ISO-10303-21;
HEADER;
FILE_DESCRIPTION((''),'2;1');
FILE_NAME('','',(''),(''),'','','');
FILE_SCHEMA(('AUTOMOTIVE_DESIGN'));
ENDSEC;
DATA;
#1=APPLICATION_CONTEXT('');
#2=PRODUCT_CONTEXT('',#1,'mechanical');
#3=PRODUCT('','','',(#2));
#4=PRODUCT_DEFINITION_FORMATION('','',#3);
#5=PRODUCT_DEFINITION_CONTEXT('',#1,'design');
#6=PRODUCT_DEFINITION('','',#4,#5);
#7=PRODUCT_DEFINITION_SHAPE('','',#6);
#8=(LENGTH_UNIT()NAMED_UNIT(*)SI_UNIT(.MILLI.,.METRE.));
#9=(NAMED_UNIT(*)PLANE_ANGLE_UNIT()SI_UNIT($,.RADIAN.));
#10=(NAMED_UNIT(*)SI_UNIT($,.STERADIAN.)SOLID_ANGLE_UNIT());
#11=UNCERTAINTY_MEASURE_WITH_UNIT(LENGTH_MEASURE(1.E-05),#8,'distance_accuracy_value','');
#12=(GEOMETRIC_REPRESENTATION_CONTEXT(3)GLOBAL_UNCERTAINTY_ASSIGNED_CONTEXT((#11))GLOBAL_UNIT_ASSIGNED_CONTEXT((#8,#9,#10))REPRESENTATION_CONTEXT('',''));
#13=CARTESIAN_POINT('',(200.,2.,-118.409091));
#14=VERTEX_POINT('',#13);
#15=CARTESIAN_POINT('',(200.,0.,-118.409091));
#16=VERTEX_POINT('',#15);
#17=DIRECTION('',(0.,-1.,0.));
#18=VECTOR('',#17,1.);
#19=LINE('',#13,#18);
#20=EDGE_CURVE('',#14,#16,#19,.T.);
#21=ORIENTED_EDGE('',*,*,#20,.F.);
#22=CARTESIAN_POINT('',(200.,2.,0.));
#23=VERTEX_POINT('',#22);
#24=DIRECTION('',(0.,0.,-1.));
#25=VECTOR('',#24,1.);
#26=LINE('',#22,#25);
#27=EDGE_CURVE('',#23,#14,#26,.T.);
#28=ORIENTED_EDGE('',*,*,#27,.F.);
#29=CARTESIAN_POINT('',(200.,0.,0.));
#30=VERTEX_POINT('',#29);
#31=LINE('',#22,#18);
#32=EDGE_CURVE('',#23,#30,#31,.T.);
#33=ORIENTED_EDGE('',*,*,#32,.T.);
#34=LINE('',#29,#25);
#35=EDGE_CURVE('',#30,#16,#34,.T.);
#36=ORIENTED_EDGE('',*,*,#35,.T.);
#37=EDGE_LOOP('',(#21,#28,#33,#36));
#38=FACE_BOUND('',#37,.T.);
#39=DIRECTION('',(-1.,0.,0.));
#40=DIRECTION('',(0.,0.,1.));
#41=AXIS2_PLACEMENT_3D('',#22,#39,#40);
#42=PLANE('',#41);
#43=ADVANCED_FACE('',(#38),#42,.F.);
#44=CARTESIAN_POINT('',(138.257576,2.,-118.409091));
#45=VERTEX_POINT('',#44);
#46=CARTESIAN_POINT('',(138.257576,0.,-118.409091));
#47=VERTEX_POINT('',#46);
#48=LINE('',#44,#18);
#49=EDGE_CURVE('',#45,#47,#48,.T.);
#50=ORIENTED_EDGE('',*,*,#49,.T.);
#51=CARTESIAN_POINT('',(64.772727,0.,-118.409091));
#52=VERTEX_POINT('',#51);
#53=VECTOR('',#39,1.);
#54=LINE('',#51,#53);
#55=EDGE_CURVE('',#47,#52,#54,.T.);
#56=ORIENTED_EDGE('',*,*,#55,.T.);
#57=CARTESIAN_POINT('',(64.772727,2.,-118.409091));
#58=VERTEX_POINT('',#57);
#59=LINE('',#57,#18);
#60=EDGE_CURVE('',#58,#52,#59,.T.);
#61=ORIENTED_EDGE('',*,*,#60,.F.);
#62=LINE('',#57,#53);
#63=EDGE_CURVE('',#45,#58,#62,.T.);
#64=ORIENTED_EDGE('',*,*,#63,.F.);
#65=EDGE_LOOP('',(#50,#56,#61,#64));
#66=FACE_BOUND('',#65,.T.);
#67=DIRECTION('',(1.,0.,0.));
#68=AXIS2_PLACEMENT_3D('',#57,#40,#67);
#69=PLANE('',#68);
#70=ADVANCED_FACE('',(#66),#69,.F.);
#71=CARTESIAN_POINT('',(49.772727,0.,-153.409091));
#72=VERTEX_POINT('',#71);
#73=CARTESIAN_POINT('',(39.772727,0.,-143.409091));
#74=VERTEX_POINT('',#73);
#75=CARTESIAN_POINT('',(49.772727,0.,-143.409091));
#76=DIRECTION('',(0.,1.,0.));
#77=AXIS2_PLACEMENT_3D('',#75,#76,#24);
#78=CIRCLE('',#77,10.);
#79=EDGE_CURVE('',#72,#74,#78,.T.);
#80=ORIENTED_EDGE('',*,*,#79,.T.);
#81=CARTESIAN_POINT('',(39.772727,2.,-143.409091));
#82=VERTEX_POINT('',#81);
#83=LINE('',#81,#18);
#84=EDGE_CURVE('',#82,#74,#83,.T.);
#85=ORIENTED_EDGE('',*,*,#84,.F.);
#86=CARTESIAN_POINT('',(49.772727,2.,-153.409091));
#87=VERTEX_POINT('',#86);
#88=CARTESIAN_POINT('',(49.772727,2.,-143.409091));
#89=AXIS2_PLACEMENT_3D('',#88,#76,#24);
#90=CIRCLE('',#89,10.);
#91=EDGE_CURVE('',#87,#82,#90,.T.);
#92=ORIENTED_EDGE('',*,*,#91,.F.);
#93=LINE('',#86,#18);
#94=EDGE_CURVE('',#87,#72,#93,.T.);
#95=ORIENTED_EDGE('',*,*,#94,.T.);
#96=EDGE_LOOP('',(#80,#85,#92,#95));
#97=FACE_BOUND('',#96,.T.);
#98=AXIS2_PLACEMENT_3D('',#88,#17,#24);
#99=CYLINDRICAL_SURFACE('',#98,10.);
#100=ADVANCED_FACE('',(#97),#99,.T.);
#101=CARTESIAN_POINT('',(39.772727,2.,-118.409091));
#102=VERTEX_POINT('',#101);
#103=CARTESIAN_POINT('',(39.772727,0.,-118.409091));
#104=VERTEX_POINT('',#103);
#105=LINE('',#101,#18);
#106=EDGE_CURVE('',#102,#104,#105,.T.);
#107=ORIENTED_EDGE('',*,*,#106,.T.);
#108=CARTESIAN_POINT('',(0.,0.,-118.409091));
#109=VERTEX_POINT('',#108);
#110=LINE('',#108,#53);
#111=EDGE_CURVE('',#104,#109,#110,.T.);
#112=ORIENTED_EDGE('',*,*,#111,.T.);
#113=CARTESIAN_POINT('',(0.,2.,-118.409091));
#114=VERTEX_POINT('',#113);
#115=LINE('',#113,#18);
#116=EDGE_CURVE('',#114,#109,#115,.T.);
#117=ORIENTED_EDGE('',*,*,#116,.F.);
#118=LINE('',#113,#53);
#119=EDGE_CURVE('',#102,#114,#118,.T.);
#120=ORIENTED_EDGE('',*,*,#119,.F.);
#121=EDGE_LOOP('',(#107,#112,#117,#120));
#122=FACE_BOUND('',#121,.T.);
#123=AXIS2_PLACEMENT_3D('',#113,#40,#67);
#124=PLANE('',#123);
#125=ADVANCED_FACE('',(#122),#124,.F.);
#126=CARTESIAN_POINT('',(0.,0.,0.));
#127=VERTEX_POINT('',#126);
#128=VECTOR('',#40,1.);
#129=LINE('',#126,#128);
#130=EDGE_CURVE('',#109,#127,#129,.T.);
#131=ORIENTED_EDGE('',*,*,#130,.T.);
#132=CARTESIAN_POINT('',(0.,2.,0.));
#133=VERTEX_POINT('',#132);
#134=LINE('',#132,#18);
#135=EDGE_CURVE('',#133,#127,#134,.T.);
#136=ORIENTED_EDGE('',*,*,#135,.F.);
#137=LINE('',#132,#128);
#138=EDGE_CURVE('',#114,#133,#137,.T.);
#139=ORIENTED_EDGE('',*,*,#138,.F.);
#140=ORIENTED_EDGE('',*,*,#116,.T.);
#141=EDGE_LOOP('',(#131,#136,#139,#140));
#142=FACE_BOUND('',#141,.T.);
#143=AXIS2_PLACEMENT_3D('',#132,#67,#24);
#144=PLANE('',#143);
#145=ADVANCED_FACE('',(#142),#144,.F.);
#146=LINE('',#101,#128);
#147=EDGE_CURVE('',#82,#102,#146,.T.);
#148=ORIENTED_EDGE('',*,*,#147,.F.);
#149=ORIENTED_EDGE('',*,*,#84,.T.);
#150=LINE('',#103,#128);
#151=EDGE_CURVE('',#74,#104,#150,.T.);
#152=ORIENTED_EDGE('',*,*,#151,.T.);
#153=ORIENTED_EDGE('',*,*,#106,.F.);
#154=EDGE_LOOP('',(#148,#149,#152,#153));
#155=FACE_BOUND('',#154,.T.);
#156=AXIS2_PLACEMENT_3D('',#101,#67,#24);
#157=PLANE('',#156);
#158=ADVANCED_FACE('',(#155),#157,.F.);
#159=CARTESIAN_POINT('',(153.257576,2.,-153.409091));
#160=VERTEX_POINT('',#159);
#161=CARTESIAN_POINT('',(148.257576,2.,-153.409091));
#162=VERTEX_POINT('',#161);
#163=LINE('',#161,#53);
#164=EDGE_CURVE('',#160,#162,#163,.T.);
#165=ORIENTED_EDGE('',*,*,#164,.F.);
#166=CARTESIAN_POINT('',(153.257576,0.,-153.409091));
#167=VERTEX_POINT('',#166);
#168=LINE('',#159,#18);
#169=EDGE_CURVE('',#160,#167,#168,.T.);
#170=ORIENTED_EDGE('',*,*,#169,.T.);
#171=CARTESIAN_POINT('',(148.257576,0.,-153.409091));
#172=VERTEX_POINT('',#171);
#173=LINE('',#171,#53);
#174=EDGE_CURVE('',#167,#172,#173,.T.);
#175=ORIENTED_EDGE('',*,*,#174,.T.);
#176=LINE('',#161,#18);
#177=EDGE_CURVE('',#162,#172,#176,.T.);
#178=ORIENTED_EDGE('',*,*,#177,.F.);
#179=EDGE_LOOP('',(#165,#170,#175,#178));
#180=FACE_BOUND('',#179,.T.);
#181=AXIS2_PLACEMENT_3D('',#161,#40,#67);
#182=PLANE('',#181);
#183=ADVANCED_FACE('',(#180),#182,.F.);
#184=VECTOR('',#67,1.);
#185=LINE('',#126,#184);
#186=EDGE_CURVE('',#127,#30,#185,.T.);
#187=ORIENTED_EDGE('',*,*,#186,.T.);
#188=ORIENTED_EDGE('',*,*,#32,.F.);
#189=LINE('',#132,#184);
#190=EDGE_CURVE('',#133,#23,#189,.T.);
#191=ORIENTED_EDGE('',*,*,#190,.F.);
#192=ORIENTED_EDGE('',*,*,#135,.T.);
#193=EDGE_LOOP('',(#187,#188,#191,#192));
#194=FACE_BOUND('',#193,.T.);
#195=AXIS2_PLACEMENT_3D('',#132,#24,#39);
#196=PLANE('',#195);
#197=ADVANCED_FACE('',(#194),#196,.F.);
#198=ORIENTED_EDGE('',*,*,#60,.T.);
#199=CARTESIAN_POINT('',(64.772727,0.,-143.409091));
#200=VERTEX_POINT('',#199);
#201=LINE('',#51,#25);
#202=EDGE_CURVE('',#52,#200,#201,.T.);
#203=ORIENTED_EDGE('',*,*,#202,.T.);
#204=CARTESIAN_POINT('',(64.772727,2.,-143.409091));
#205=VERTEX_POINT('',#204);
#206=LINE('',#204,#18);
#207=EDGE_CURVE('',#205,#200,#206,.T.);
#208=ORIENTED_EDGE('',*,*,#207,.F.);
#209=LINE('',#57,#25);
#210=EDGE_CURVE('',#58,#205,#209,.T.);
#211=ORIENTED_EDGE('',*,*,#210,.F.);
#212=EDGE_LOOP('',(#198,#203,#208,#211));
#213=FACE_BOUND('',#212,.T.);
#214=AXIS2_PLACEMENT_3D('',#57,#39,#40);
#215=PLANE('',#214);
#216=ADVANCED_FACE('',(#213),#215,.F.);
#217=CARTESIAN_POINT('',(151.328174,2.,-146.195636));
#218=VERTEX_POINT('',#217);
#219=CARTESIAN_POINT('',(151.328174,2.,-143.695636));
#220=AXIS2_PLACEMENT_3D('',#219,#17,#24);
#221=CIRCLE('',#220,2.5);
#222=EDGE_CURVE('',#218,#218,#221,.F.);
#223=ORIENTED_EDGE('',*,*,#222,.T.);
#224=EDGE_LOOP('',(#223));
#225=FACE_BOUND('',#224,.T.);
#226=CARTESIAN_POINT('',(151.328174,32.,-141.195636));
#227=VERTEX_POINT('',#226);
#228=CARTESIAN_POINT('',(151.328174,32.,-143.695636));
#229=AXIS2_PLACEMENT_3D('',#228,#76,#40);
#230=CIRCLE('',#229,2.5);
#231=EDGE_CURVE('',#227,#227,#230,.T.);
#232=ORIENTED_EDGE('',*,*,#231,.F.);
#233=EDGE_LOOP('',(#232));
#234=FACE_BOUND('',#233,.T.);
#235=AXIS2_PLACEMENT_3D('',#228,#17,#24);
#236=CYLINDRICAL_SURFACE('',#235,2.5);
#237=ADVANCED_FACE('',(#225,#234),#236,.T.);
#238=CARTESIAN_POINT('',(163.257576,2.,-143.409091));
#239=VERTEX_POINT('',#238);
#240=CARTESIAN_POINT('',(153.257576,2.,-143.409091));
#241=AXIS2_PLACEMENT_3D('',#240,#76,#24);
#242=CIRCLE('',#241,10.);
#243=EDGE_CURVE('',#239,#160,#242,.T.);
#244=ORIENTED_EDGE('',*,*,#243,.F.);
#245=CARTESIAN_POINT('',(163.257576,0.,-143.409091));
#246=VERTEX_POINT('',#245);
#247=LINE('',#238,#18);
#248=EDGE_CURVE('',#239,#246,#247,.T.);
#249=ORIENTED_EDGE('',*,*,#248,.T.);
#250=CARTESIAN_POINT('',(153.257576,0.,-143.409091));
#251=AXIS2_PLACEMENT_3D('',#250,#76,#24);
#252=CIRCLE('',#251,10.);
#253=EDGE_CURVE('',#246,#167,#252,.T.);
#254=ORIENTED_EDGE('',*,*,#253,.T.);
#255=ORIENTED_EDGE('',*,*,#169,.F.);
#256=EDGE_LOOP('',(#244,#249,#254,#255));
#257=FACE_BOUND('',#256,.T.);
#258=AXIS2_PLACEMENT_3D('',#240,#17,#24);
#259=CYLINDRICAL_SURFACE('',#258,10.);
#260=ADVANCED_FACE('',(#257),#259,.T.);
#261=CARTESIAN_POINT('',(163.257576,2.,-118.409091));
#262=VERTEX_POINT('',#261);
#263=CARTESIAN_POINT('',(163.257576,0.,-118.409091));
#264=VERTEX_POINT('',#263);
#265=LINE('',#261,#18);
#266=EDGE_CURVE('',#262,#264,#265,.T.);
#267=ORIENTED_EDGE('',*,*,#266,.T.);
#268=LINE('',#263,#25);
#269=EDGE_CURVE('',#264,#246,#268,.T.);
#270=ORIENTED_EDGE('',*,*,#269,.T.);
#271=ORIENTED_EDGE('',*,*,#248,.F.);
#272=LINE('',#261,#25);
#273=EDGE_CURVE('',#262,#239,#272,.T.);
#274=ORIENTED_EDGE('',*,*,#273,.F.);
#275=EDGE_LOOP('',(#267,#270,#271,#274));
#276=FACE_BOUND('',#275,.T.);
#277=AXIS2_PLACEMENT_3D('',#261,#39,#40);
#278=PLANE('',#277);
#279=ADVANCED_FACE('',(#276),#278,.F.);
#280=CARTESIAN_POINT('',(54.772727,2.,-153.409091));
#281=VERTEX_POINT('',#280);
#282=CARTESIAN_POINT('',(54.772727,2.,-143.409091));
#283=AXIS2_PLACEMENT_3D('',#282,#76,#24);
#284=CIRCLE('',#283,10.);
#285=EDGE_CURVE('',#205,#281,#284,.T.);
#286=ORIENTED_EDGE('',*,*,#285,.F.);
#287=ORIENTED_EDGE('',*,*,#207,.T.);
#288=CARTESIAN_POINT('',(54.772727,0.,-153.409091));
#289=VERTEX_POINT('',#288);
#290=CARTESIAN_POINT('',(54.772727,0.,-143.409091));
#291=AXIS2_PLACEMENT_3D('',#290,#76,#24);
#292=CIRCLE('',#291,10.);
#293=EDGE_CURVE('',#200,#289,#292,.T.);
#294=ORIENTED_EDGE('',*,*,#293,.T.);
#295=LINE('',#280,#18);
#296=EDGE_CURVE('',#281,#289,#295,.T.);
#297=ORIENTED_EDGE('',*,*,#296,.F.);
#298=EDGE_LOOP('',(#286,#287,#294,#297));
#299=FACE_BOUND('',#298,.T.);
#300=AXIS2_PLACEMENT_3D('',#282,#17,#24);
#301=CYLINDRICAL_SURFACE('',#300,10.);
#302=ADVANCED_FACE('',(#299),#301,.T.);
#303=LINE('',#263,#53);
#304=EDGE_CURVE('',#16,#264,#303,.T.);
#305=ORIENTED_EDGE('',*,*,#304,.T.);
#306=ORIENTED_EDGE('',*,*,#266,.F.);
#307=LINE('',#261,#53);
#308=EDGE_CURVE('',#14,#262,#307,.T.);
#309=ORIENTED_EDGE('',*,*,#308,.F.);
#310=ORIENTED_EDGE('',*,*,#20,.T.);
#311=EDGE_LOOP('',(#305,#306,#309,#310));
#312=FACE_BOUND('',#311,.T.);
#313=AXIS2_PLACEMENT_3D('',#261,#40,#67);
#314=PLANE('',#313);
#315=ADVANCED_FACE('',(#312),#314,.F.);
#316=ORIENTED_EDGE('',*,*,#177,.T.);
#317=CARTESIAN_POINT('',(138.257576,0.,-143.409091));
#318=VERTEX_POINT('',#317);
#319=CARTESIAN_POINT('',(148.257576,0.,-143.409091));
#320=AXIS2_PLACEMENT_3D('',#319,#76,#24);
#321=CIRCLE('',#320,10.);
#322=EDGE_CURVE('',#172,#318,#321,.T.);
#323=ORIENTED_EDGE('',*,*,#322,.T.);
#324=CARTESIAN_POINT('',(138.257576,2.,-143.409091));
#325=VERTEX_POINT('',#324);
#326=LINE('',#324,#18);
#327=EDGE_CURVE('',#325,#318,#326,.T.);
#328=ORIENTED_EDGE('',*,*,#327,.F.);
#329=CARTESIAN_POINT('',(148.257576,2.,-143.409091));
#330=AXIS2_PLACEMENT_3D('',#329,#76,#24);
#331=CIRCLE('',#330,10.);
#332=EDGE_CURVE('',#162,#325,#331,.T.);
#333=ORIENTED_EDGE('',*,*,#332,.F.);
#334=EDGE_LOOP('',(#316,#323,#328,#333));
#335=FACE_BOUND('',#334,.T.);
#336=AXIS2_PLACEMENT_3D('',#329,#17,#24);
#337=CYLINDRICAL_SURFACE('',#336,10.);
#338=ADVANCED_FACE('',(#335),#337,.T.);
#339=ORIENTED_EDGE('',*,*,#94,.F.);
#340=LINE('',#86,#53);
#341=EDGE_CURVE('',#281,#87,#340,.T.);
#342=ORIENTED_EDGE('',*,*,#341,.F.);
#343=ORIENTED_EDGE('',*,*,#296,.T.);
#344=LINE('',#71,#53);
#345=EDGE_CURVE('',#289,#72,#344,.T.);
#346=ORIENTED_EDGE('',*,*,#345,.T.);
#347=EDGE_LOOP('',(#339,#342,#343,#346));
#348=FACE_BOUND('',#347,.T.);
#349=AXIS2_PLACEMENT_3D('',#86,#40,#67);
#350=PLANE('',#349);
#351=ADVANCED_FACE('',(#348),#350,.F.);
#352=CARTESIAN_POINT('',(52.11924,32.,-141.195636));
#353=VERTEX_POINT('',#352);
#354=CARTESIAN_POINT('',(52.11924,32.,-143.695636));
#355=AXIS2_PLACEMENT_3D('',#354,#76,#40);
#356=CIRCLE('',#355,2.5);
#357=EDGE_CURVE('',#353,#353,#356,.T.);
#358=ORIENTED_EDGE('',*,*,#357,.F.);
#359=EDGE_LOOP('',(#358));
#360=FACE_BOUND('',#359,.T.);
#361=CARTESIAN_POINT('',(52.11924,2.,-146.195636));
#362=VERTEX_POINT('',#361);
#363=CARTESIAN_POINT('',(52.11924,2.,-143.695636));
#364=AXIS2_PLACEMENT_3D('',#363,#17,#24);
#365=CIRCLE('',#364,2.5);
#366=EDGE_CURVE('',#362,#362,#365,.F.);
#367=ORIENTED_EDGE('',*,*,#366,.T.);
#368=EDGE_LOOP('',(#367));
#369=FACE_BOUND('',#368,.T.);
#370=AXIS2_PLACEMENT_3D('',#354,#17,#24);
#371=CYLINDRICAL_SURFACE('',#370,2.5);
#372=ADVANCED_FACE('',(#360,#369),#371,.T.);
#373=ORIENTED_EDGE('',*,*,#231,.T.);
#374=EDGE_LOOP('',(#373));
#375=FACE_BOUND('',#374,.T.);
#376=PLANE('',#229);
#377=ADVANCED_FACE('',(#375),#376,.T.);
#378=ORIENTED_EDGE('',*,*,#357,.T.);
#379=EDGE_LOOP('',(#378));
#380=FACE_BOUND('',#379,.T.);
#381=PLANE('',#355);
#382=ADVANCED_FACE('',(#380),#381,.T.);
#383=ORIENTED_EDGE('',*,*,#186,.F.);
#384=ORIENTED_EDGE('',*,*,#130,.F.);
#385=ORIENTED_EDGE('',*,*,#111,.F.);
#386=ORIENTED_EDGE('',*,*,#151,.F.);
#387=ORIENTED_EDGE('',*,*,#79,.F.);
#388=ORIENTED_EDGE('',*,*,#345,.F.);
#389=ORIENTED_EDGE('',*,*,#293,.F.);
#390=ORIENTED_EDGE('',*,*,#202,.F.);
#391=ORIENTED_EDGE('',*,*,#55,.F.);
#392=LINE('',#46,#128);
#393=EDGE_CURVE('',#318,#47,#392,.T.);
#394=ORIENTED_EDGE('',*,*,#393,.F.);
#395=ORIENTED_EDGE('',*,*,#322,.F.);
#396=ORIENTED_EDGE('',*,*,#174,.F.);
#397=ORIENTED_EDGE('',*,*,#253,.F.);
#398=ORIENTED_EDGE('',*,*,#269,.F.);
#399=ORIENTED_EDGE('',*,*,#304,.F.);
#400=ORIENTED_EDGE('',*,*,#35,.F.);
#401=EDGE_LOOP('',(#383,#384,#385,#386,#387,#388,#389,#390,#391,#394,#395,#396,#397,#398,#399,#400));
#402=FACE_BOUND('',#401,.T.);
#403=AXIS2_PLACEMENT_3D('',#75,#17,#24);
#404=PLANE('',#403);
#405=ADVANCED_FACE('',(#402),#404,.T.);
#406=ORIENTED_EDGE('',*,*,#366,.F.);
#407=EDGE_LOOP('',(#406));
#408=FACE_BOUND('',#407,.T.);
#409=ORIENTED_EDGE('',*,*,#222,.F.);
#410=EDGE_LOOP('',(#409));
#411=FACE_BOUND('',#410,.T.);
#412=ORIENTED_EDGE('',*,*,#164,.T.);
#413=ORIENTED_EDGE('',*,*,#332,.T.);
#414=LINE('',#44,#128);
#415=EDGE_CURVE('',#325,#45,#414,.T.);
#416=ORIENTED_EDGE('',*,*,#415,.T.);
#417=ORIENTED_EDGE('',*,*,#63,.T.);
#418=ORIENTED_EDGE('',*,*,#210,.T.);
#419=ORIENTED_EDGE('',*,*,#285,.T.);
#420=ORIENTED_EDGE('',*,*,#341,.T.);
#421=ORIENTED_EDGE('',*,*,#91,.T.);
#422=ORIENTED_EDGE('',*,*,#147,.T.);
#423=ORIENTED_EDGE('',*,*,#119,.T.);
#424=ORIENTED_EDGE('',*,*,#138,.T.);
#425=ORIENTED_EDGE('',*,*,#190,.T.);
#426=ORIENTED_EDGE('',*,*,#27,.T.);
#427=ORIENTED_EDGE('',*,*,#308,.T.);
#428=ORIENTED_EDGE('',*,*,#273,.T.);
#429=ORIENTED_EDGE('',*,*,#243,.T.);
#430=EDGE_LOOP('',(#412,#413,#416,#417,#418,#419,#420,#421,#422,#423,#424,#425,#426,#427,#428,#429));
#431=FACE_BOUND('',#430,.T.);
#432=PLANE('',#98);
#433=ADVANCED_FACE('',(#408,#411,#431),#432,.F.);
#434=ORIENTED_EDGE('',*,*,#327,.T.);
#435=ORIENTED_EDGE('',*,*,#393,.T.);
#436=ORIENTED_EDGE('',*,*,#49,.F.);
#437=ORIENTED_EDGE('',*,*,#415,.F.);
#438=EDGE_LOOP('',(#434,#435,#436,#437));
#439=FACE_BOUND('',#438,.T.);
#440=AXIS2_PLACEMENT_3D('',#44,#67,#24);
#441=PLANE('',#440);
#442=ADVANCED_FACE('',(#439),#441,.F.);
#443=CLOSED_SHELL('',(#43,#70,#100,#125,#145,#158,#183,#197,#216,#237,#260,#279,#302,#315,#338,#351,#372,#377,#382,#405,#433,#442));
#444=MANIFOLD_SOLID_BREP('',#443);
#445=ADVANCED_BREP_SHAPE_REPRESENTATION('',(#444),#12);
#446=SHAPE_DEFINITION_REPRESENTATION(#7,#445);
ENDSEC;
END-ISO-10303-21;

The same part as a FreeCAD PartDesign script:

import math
import FreeCAD as App
import Part
import Sketcher
Q = App.Units.Quantity

doc = App.newDocument("Part")
body = doc.addObject("PartDesign::Body", "Body")

# Sketch on XZ plane
sketch1 = body.newObject("Sketcher::SketchObject", "Sketch")
sketch1.AttachmentSupport = (doc.getObject("XZ_Plane"), [""])
sketch1.MapMode = "FlatFace"
sketch1.addGeometry(Part.LineSegment(App.Vector(138.257576, -118.409091, 0), App.Vector(64.772727, -118.409091, 0)), False)
sketch1.addGeometry(Part.LineSegment(App.Vector(64.772727, -118.409091, 0), App.Vector(64.772727, -143.409091, 0)), False)
sketch1.addGeometry(Part.ArcOfCircle(Part.Circle(App.Vector(54.772727, -143.409091, 0), App.Vector(0, 0, 1), 10), math.radians(-90), math.radians(0)), False)
sketch1.addGeometry(Part.LineSegment(App.Vector(54.772727, -153.409091, 0), App.Vector(49.772727, -153.409091, 0)), False)
sketch1.addGeometry(Part.ArcOfCircle(Part.Circle(App.Vector(49.772727, -143.409091, 0), App.Vector(0, 0, 1), 10), math.radians(180), math.radians(270)), False)
sketch1.addGeometry(Part.LineSegment(App.Vector(39.772727, -143.409091, 0), App.Vector(39.772727, -118.409091, 0)), False)
sketch1.addGeometry(Part.LineSegment(App.Vector(39.772727, -118.409091, 0), App.Vector(0, -118.409091, 0)), False)
sketch1.addGeometry(Part.LineSegment(App.Vector(0, -118.409091, 0), App.Vector(0, 0, 0)), False)
sketch1.addGeometry(Part.LineSegment(App.Vector(0, 0, 0), App.Vector(200, 0, 0)), False)
sketch1.addGeometry(Part.LineSegment(App.Vector(200, 0, 0), App.Vector(200, -118.409091, 0)), False)
sketch1.addGeometry(Part.LineSegment(App.Vector(200, -118.409091, 0), App.Vector(163.257576, -118.409091, 0)), False)
sketch1.addGeometry(Part.LineSegment(App.Vector(163.257576, -118.409091, 0), App.Vector(163.257576, -143.409091, 0)), False)
sketch1.addGeometry(Part.ArcOfCircle(Part.Circle(App.Vector(153.257576, -143.409091, 0), App.Vector(0, 0, 1), 10), math.radians(-90), math.radians(0)), False)
sketch1.addGeometry(Part.LineSegment(App.Vector(153.257576, -153.409091, 0), App.Vector(148.257576, -153.409091, 0)), False)
sketch1.addGeometry(Part.ArcOfCircle(Part.Circle(App.Vector(148.257576, -143.409091, 0), App.Vector(0, 0, 1), 10), math.radians(180), math.radians(270)), False)
sketch1.addGeometry(Part.LineSegment(App.Vector(138.257576, -143.409091, 0), App.Vector(138.257576, -118.409091, 0)), False)
sketch1.addConstraint(Sketcher.Constraint("Coincident", 0, 2, 1, 1))
sketch1.addConstraint(Sketcher.Constraint("Tangent", 1, 2, 2, 2))
sketch1.addConstraint(Sketcher.Constraint("Tangent", 2, 1, 3, 1))
sketch1.addConstraint(Sketcher.Constraint("Tangent", 3, 2, 4, 2))
sketch1.addConstraint(Sketcher.Constraint("Tangent", 4, 1, 5, 1))
sketch1.addConstraint(Sketcher.Constraint("Coincident", 5, 2, 6, 1))
sketch1.addConstraint(Sketcher.Constraint("Coincident", 6, 2, 7, 1))
sketch1.addConstraint(Sketcher.Constraint("Coincident", 7, 2, 8, 1))
sketch1.addConstraint(Sketcher.Constraint("Coincident", 8, 2, 9, 1))
sketch1.addConstraint(Sketcher.Constraint("Coincident", 9, 2, 10, 1))
sketch1.addConstraint(Sketcher.Constraint("Coincident", 10, 2, 11, 1))
sketch1.addConstraint(Sketcher.Constraint("Tangent", 11, 2, 12, 2))
sketch1.addConstraint(Sketcher.Constraint("Tangent", 12, 1, 13, 1))
sketch1.addConstraint(Sketcher.Constraint("Tangent", 13, 2, 14, 2))
sketch1.addConstraint(Sketcher.Constraint("Tangent", 14, 1, 15, 1))
sketch1.addConstraint(Sketcher.Constraint("Coincident", 15, 2, 0, 1))
sketch1.addConstraint(Sketcher.Constraint("Horizontal", 0))
sketch1.addConstraint(Sketcher.Constraint("Vertical", 1))
sketch1.addConstraint(Sketcher.Constraint("Horizontal", 3))
sketch1.addConstraint(Sketcher.Constraint("Vertical", 5))
sketch1.addConstraint(Sketcher.Constraint("Horizontal", 6))
sketch1.addConstraint(Sketcher.Constraint("Vertical", 7))
sketch1.addConstraint(Sketcher.Constraint("Horizontal", 8))
sketch1.addConstraint(Sketcher.Constraint("Vertical", 9))
sketch1.addConstraint(Sketcher.Constraint("Horizontal", 10))
sketch1.addConstraint(Sketcher.Constraint("Vertical", 11))
sketch1.addConstraint(Sketcher.Constraint("Horizontal", 13))
sketch1.addConstraint(Sketcher.Constraint("Vertical", 15))
sketch1.addConstraint(Sketcher.Constraint("Coincident", 7, 2, -1, 1))
sketch1.addConstraint(Sketcher.Constraint("Equal", 2, 4))
sketch1.addConstraint(Sketcher.Constraint("Equal", 4, 12))
sketch1.addConstraint(Sketcher.Constraint("Equal", 12, 14))
sketch1.addConstraint(Sketcher.Constraint("Horizontal", 4, 3, 12, 3))
sketch1.addConstraint(Sketcher.Constraint("Horizontal", 0, 2, 5, 2))
sketch1.addConstraint(Sketcher.Constraint("Horizontal", 6, 2, 9, 2))
sketch1.addConstraint(Sketcher.Constraint("Equal", 3, 13))
sketch1.addConstraint(Sketcher.Constraint("Radius", 2, Q("10 mm")))
sketch1.addConstraint(Sketcher.Constraint("DistanceX", 3, 2, 3, 1, Q("5 mm")))
sketch1.addConstraint(Sketcher.Constraint("DistanceX", 8, 1, 8, 2, Q("200 mm")))
sketch1.addConstraint(Sketcher.Constraint("DistanceY", 1, 2, 1, 1, Q("25 mm")))
sketch1.addConstraint(Sketcher.Constraint("DistanceX", 0, 2, 0, 1, Q("73.484848 mm")))
sketch1.addConstraint(Sketcher.Constraint("DistanceY", 7, 1, 7, 2, Q("118.409091 mm")))
sketch1.addConstraint(Sketcher.Constraint("DistanceX", 6, 2, 6, 1, Q("39.772727 mm")))
pad1 = body.newObject("PartDesign::Pad", "Pad")
pad1.Profile = sketch1
pad1.Length = 2
pad1.Reversed = True

# Sketch on XZ plane
sketch2 = body.newObject("Sketcher::SketchObject", "Sketch001")
sketch2.AttachmentSupport = (doc.getObject("XZ_Plane"), [""])
sketch2.MapMode = "FlatFace"
sketch2.AttachmentOffset = App.Placement(App.Vector(0, 0, -2), App.Rotation())
sketch2.addGeometry(Part.Circle(App.Vector(52.11924, -143.695636, 0), App.Vector(0, 0, 1), 2.5), False)
sketch2.addGeometry(Part.Circle(App.Vector(151.328174, -143.695636, 0), App.Vector(0, 0, 1), 2.5), False)
sketch2.addConstraint(Sketcher.Constraint("Equal", 0, 1))
sketch2.addConstraint(Sketcher.Constraint("Horizontal", 0, 3, 1, 3))
sketch2.addConstraint(Sketcher.Constraint("Diameter", 0, Q("5 mm")))
sketch2.addConstraint(Sketcher.Constraint("DistanceX", -1, 1, 0, 3, Q("52.11924 mm")))
sketch2.addConstraint(Sketcher.Constraint("DistanceY", 0, 3, -1, 1, Q("143.695636 mm")))
sketch2.addConstraint(Sketcher.Constraint("DistanceX", -1, 1, 1, 3, Q("151.328174 mm")))
pad2 = body.newObject("PartDesign::Pad", "Pad001")
pad2.Profile = sketch2
pad2.Length = 30
pad2.Reversed = True

doc.recompute()
